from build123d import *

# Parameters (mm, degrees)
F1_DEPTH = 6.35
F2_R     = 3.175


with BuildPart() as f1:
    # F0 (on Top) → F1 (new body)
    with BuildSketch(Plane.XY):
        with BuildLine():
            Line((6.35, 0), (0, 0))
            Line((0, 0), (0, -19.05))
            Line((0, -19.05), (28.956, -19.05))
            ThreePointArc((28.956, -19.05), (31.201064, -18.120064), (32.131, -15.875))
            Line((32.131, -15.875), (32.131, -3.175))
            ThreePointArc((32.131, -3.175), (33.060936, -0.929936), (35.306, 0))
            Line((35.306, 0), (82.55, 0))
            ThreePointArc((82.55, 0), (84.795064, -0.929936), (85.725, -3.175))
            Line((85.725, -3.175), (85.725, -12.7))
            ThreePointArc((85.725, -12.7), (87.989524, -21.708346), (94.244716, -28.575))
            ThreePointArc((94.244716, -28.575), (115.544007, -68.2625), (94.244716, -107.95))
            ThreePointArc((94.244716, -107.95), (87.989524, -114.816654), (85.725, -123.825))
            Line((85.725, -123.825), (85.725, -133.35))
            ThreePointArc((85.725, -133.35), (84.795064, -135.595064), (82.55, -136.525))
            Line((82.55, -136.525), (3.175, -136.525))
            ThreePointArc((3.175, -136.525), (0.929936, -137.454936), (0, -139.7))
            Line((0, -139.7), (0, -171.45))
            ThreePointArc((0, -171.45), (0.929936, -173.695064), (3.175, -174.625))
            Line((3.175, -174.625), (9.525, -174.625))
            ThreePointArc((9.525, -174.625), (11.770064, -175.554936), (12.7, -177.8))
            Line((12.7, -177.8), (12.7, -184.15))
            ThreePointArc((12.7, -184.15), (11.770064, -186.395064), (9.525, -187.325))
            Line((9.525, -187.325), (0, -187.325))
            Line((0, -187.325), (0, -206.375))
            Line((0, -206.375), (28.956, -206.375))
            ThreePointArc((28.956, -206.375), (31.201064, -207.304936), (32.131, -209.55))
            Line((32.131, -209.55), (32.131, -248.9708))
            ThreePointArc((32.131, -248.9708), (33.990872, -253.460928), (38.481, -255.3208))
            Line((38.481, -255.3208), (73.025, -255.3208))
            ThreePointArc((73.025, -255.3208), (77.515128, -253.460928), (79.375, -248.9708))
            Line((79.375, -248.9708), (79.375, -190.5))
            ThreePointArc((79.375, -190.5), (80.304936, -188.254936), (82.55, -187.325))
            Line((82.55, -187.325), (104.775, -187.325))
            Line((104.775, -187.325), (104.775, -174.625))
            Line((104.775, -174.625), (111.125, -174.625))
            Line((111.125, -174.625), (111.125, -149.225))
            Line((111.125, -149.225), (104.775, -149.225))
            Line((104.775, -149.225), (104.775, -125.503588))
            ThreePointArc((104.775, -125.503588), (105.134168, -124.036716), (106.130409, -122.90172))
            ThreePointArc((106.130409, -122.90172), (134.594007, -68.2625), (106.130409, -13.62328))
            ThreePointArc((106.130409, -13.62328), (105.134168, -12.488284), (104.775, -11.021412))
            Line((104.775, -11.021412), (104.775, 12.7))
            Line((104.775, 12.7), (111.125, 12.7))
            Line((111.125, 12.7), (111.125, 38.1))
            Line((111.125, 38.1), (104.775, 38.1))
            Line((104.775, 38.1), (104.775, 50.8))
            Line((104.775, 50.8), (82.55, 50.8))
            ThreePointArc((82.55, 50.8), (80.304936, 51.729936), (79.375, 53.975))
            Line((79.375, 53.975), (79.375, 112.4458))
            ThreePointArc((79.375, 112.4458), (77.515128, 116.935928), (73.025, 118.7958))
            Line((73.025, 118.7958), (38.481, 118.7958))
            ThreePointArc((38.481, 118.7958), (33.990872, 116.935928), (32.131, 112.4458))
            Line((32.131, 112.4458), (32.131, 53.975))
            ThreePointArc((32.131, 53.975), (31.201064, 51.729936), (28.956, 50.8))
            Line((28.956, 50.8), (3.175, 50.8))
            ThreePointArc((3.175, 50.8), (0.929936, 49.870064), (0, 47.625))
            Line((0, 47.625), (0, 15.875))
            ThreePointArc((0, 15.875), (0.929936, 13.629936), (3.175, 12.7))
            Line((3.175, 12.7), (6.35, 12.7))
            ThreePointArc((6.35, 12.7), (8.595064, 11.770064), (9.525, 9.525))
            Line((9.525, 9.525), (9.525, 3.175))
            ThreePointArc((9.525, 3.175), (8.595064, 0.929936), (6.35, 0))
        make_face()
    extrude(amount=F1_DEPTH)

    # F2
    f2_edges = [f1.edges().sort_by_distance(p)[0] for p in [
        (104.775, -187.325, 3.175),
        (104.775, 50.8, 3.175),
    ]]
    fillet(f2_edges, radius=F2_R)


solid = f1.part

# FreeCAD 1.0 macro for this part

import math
import FreeCAD as App
import Part
import Sketcher
Q = App.Units.Quantity


def edges_at(feature, points):
    """Names of the edges that pass closest to the given points."""
    edges = feature.Shape.Edges
    near = lambda p: min(range(len(edges)), key=lambda i: edges[i].distToShape(Part.Vertex(*p))[0])
    return sorted({f"Edge{near(p) + 1}" for p in points})

doc = App.newDocument("Part")
body = doc.addObject("PartDesign::Body", "Body")

sketch1 = body.newObject("Sketcher::SketchObject", "Sketch")
sketch1.AttachmentSupport = (doc.getObject("XY_Plane"), [""])
sketch1.MapMode = "FlatFace"
sketch1.addGeometry(Part.LineSegment(App.Vector(6.3, 0, 0), App.Vector(0, 0, 0)), False)
sketch1.addGeometry(Part.LineSegment(App.Vector(0, 0, 0), App.Vector(0, -19.1, 0)), False)
sketch1.addGeometry(Part.LineSegment(App.Vector(0, -19.1, 0), App.Vector(29, -19.1, 0)), False)
sketch1.addGeometry(Part.ArcOfCircle(Part.Circle(App.Vector(29, -15.9, 0), App.Vector(0, 0, 1), 3.2), math.radians(-90), math.radians(0)), False)
sketch1.addGeometry(Part.LineSegment(App.Vector(32.1, -15.9, 0), App.Vector(32.1, -3.2, 0)), False)
sketch1.addGeometry(Part.ArcOfCircle(Part.Circle(App.Vector(35.3, -3.2, 0), App.Vector(0, 0, 1), 3.2), math.radians(90), math.radians(180)), False)
sketch1.addGeometry(Part.LineSegment(App.Vector(35.3, 0, 0), App.Vector(82.5, 0, 0)), False)
sketch1.addGeometry(Part.ArcOfCircle(Part.Circle(App.Vector(82.5, -3.2, 0), App.Vector(0, 0, 1), 3.2), math.radians(0), math.radians(90)), False)
sketch1.addGeometry(Part.LineSegment(App.Vector(85.7, -3.2, 0), App.Vector(85.7, -12.7, 0)), False)
sketch1.addGeometry(Part.ArcOfCircle(Part.Circle(App.Vector(104.8, -12.7, 0), App.Vector(0, 0, 1), 19.1), math.radians(180), math.radians(236)), False)
sketch1.addGeometry(Part.ArcOfCircle(Part.Circle(App.Vector(67.9, -68.3, 0), App.Vector(0, 0, 1), 47.6), math.radians(-56), math.radians(56)), False)
sketch1.addGeometry(Part.ArcOfCircle(Part.Circle(App.Vector(104.8, -123.8, 0), App.Vector(0, 0, 1), 19.1), math.radians(124), math.radians(180)), False)
sketch1.addGeometry(Part.LineSegment(App.Vector(85.7, -123.8, 0), App.Vector(85.7, -133.3, 0)), False)
sketch1.addGeometry(Part.ArcOfCircle(Part.Circle(App.Vector(82.5, -133.3, 0), App.Vector(0, 0, 1), 3.2), math.radians(-90), math.radians(0)), False)
sketch1.addGeometry(Part.LineSegment(App.Vector(82.5, -136.5, 0), App.Vector(3.2, -136.5, 0)), False)
sketch1.addGeometry(Part.ArcOfCircle(Part.Circle(App.Vector(3.2, -139.7, 0), App.Vector(0, 0, 1), 3.2), math.radians(90), math.radians(180)), False)
sketch1.addGeometry(Part.LineSegment(App.Vector(0, -139.7, 0), App.Vector(0, -171.4, 0)), False)
sketch1.addGeometry(Part.ArcOfCircle(Part.Circle(App.Vector(3.2, -171.4, 0), App.Vector(0, 0, 1), 3.2), math.radians(-180), math.radians(-90)), False)
sketch1.addGeometry(Part.LineSegment(App.Vector(3.2, -174.6, 0), App.Vector(9.5, -174.6, 0)), False)
sketch1.addGeometry(Part.ArcOfCircle(Part.Circle(App.Vector(9.5, -177.8, 0), App.Vector(0, 0, 1), 3.2), math.radians(0), math.radians(90)), False)
sketch1.addGeometry(Part.LineSegment(App.Vector(12.7, -177.8, 0), App.Vector(12.7, -184.2, 0)), False)
sketch1.addGeometry(Part.ArcOfCircle(Part.Circle(App.Vector(9.5, -184.1, 0), App.Vector(0, 0, 1), 3.2), math.radians(-90), math.radians(0)), False)
sketch1.addGeometry(Part.LineSegment(App.Vector(9.5, -187.3, 0), App.Vector(0, -187.3, 0)), False)
sketch1.addGeometry(Part.LineSegment(App.Vector(0, -187.3, 0), App.Vector(0, -206.4, 0)), False)
sketch1.addGeometry(Part.LineSegment(App.Vector(0, -206.4, 0), App.Vector(29, -206.4, 0)), False)
sketch1.addGeometry(Part.ArcOfCircle(Part.Circle(App.Vector(29, -209.6, 0), App.Vector(0, 0, 1), 3.2), math.radians(0), math.radians(90)), False)
sketch1.addGeometry(Part.LineSegment(App.Vector(32.1, -209.6, 0), App.Vector(32.1, -249, 0)), False)
sketch1.addGeometry(Part.ArcOfCircle(Part.Circle(App.Vector(38.5, -249, 0), App.Vector(0, 0, 1), 6.4), math.radians(-180), math.radians(-90)), False)
sketch1.addGeometry(Part.LineSegment(App.Vector(38.5, -255.3, 0), App.Vector(73, -255.3, 0)), False)
sketch1.addGeometry(Part.ArcOfCircle(Part.Circle(App.Vector(73, -249, 0), App.Vector(0, 0, 1), 6.4), math.radians(-90), math.radians(0)), False)
sketch1.addGeometry(Part.LineSegment(App.Vector(79.4, -249, 0), App.Vector(79.4, -190.5, 0)), False)
sketch1.addGeometry(Part.ArcOfCircle(Part.Circle(App.Vector(82.6, -190.5, 0), App.Vector(0, 0, 1), 3.2), math.radians(90), math.radians(180)), False)
sketch1.addGeometry(Part.LineSegment(App.Vector(82.5, -187.3, 0), App.Vector(104.8, -187.3, 0)), False)
sketch1.addGeometry(Part.LineSegment(App.Vector(104.8, -187.3, 0), App.Vector(104.8, -174.6, 0)), False)
sketch1.addGeometry(Part.LineSegment(App.Vector(104.8, -174.6, 0), App.Vector(111.1, -174.6, 0)), False)
sketch1.addGeometry(Part.LineSegment(App.Vector(111.1, -174.6, 0), App.Vector(111.1, -149.2, 0)), False)
sketch1.addGeometry(Part.LineSegment(App.Vector(111.1, -149.2, 0), App.Vector(104.8, -149.2, 0)), False)
sketch1.addGeometry(Part.LineSegment(App.Vector(104.8, -149.2, 0), App.Vector(104.8, -125.5, 0)), False)
sketch1.addGeometry(Part.ArcOfCircle(Part.Circle(App.Vector(108, -125.5, 0), App.Vector(0, 0, 1), 3.2), math.radians(125), math.radians(180)), False)
sketch1.addGeometry(Part.ArcOfCircle(Part.Circle(App.Vector(67.9, -68.3, 0), App.Vector(0, 0, 1), 66.7), math.radians(-55), math.radians(55)), False)
sketch1.addGeometry(Part.ArcOfCircle(Part.Circle(App.Vector(108, -11, 0), App.Vector(0, 0, 1), 3.2), math.radians(-180), math.radians(-125)), False)
sketch1.addGeometry(Part.LineSegment(App.Vector(104.8, -11, 0), App.Vector(104.8, 12.7, 0)), False)
sketch1.addGeometry(Part.LineSegment(App.Vector(104.8, 12.7, 0), App.Vector(111.1, 12.7, 0)), False)
sketch1.addGeometry(Part.LineSegment(App.Vector(111.1, 12.7, 0), App.Vector(111.1, 38.1, 0)), False)
sketch1.addGeometry(Part.LineSegment(App.Vector(111.1, 38.1, 0), App.Vector(104.8, 38.1, 0)), False)
sketch1.addGeometry(Part.LineSegment(App.Vector(104.8, 38.1, 0), App.Vector(104.8, 50.8, 0)), False)
sketch1.addGeometry(Part.LineSegment(App.Vector(104.8, 50.8, 0), App.Vector(82.5, 50.8, 0)), False)
sketch1.addGeometry(Part.ArcOfCircle(Part.Circle(App.Vector(82.6, 54, 0), App.Vector(0, 0, 1), 3.2), math.radians(-180), math.radians(-90)), False)
sketch1.addGeometry(Part.LineSegment(App.Vector(79.4, 54, 0), App.Vector(79.4, 112.4, 0)), False)
sketch1.addGeometry(Part.ArcOfCircle(Part.Circle(App.Vector(73, 112.4, 0), App.Vector(0, 0, 1), 6.4), math.radians(0), math.radians(90)), False)
sketch1.addGeometry(Part.LineSegment(App.Vector(73, 118.8, 0), App.Vector(38.5, 118.8, 0)), False)
sketch1.addGeometry(Part.ArcOfCircle(Part.Circle(App.Vector(38.5, 112.4, 0), App.Vector(0, 0, 1), 6.4), math.radians(90), math.radians(180)), False)
sketch1.addGeometry(Part.LineSegment(App.Vector(32.1, 112.4, 0), App.Vector(32.1, 54, 0)), False)
sketch1.addGeometry(Part.ArcOfCircle(Part.Circle(App.Vector(29, 54, 0), App.Vector(0, 0, 1), 3.2), math.radians(-90), math.radians(0)), False)
sketch1.addGeometry(Part.LineSegment(App.Vector(29, 50.8, 0), App.Vector(3.2, 50.8, 0)), False)
sketch1.addGeometry(Part.ArcOfCircle(Part.Circle(App.Vector(3.2, 47.6, 0), App.Vector(0, 0, 1), 3.2), math.radians(90), math.radians(180)), False)
sketch1.addGeometry(Part.LineSegment(App.Vector(0, 47.6, 0), App.Vector(0, 15.9, 0)), False)
sketch1.addGeometry(Part.ArcOfCircle(Part.Circle(App.Vector(3.2, 15.9, 0), App.Vector(0, 0, 1), 3.2), math.radians(-180), math.radians(-90)), False)
sketch1.addGeometry(Part.LineSegment(App.Vector(3.2, 12.7, 0), App.Vector(6.3, 12.7, 0)), False)
sketch1.addGeometry(Part.ArcOfCircle(Part.Circle(App.Vector(6.3, 9.5, 0), App.Vector(0, 0, 1), 3.2), math.radians(0), math.radians(90)), False)
sketch1.addGeometry(Part.LineSegment(App.Vector(9.5, 9.5, 0), App.Vector(9.5, 3.2, 0)), False)
sketch1.addGeometry(Part.ArcOfCircle(Part.Circle(App.Vector(6.3, 3.2, 0), App.Vector(0, 0, 1), 3.2), math.radians(-90), math.radians(0)), False)
sketch1.addConstraint(Sketcher.Constraint("Coincident", 0, 2, 1, 1))
sketch1.addConstraint(Sketcher.Constraint("Coincident", 1, 2, 2, 1))
sketch1.addConstraint(Sketcher.Constraint("Tangent", 2, 2, 3, 1))
sketch1.addConstraint(Sketcher.Constraint("Tangent", 3, 2, 4, 1))
sketch1.addConstraint(Sketcher.Constraint("Tangent", 4, 2, 5, 2))
sketch1.addConstraint(Sketcher.Constraint("Tangent", 5, 1, 6, 1))
sketch1.addConstraint(Sketcher.Constraint("Tangent", 6, 2, 7, 2))
sketch1.addConstraint(Sketcher.Constraint("Tangent", 7, 1, 8, 1))
sketch1.addConstraint(Sketcher.Constraint("Tangent", 8, 2, 9, 1))
sketch1.addConstraint(Sketcher.Constraint("Tangent", 9, 2, 10, 2))
sketch1.addConstraint(Sketcher.Constraint("Tangent", 10, 1, 11, 1))
sketch1.addConstraint(Sketcher.Constraint("Tangent", 11, 2, 12, 1))
sketch1.addConstraint(Sketcher.Constraint("Tangent", 12, 2, 13, 2))
sketch1.addConstraint(Sketcher.Constraint("Tangent", 13, 1, 14, 1))
sketch1.addConstraint(Sketcher.Constraint("Tangent", 14, 2, 15, 1))
sketch1.addConstraint(Sketcher.Constraint("Tangent", 15, 2, 16, 1))
sketch1.addConstraint(Sketcher.Constraint("Tangent", 16, 2, 17, 1))
sketch1.addConstraint(Sketcher.Constraint("Tangent", 17, 2, 18, 1))
sketch1.addConstraint(Sketcher.Constraint("Tangent", 18, 2, 19, 2))
sketch1.addConstraint(Sketcher.Constraint("Tangent", 19, 1, 20, 1))
sketch1.addConstraint(Sketcher.Constraint("Tangent", 20, 2, 21, 2))
sketch1.addConstraint(Sketcher.Constraint("Tangent", 21, 1, 22, 1))
sketch1.addConstraint(Sketcher.Constraint("Coincident", 22, 2, 23, 1))
sketch1.addConstraint(Sketcher.Constraint("Coincident", 23, 2, 24, 1))
sketch1.addConstraint(Sketcher.Constraint("Tangent", 24, 2, 25, 2))
sketch1.addConstraint(Sketcher.Constraint("Tangent", 25, 1, 26, 1))
sketch1.addConstraint(Sketcher.Constraint("Tangent", 26, 2, 27, 1))
sketch1.addConstraint(Sketcher.Constraint("Tangent", 27, 2, 28, 1))
sketch1.addConstraint(Sketcher.Constraint("Tangent", 28, 2, 29, 1))
sketch1.addConstraint(Sketcher.Constraint("Tangent", 29, 2, 30, 1))
sketch1.addConstraint(Sketcher.Constraint("Tangent", 30, 2, 31, 2))
sketch1.addConstraint(Sketcher.Constraint("Tangent", 31, 1, 32, 1))
sketch1.addConstraint(Sketcher.Constraint("Coincident", 32, 2, 33, 1))
sketch1.addConstraint(Sketcher.Constraint("Coincident", 33, 2, 34, 1))
sketch1.addConstraint(Sketcher.Constraint("Coincident", 34, 2, 35, 1))
sketch1.addConstraint(Sketcher.Constraint("Coincident", 35, 2, 36, 1))
sketch1.addConstraint(Sketcher.Constraint("Coincident", 36, 2, 37, 1))
sketch1.addConstraint(Sketcher.Constraint("Tangent", 37, 2, 38, 2))
sketch1.addConstraint(Sketcher.Constraint("Tangent", 38, 1, 39, 1))
sketch1.addConstraint(Sketcher.Constraint("Tangent", 39, 2, 40, 2))
sketch1.addConstraint(Sketcher.Constraint("Tangent", 40, 1, 41, 1))
sketch1.addConstraint(Sketcher.Constraint("Coincident", 41, 2, 42, 1))
sketch1.addConstraint(Sketcher.Constraint("Coincident", 42, 2, 43, 1))
sketch1.addConstraint(Sketcher.Constraint("Coincident", 43, 2, 44, 1))
sketch1.addConstraint(Sketcher.Constraint("Coincident", 44, 2, 45, 1))
sketch1.addConstraint(Sketcher.Constraint("Coincident", 45, 2, 46, 1))
sketch1.addConstraint(Sketcher.Constraint("Tangent", 46, 2, 47, 2))
sketch1.addConstraint(Sketcher.Constraint("Tangent", 47, 1, 48, 1))
sketch1.addConstraint(Sketcher.Constraint("Tangent", 48, 2, 49, 1))
sketch1.addConstraint(Sketcher.Constraint("Tangent", 49, 2, 50, 1))
sketch1.addConstraint(Sketcher.Constraint("Tangent", 50, 2, 51, 1))
sketch1.addConstraint(Sketcher.Constraint("Tangent", 51, 2, 52, 1))
sketch1.addConstraint(Sketcher.Constraint("Tangent", 52, 2, 53, 2))
sketch1.addConstraint(Sketcher.Constraint("Tangent", 53, 1, 54, 1))
sketch1.addConstraint(Sketcher.Constraint("Tangent", 54, 2, 55, 1))
sketch1.addConstraint(Sketcher.Constraint("Tangent", 55, 2, 56, 1))
sketch1.addConstraint(Sketcher.Constraint("Tangent", 56, 2, 57, 1))
sketch1.addConstraint(Sketcher.Constraint("Tangent", 57, 2, 58, 1))
sketch1.addConstraint(Sketcher.Constraint("Tangent", 58, 2, 59, 2))
sketch1.addConstraint(Sketcher.Constraint("Tangent", 59, 1, 60, 1))
sketch1.addConstraint(Sketcher.Constraint("Tangent", 60, 2, 61, 2))
sketch1.addConstraint(Sketcher.Constraint("Tangent", 61, 1, 0, 1))
sketch1.addConstraint(Sketcher.Constraint("Horizontal", 0))
sketch1.addConstraint(Sketcher.Constraint("Vertical", 1))
sketch1.addConstraint(Sketcher.Constraint("Horizontal", 2))
sketch1.addConstraint(Sketcher.Constraint("Vertical", 4))
sketch1.addConstraint(Sketcher.Constraint("Horizontal", 6))
sketch1.addConstraint(Sketcher.Constraint("Vertical", 8))
sketch1.addConstraint(Sketcher.Constraint("Vertical", 12))
sketch1.addConstraint(Sketcher.Constraint("Horizontal", 14))
sketch1.addConstraint(Sketcher.Constraint("Vertical", 16))
sketch1.addConstraint(Sketcher.Constraint("Horizontal", 18))
sketch1.addConstraint(Sketcher.Constraint("Vertical", 20))
sketch1.addConstraint(Sketcher.Constraint("Horizontal", 22))
sketch1.addConstraint(Sketcher.Constraint("Vertical", 23))
sketch1.addConstraint(Sketcher.Constraint("Horizontal", 24))
sketch1.addConstraint(Sketcher.Constraint("Vertical", 26))
sketch1.addConstraint(Sketcher.Constraint("Horizontal", 28))
sketch1.addConstraint(Sketcher.Constraint("Vertical", 30))
sketch1.addConstraint(Sketcher.Constraint("Horizontal", 32))
sketch1.addConstraint(Sketcher.Constraint("Vertical", 33))
sketch1.addConstraint(Sketcher.Constraint("Horizontal", 34))
sketch1.addConstraint(Sketcher.Constraint("Vertical", 35))
sketch1.addConstraint(Sketcher.Constraint("Horizontal", 36))
sketch1.addConstraint(Sketcher.Constraint("Vertical", 37))
sketch1.addConstraint(Sketcher.Constraint("Vertical", 41))
sketch1.addConstraint(Sketcher.Constraint("Horizontal", 42))
sketch1.addConstraint(Sketcher.Constraint("Vertical", 43))
sketch1.addConstraint(Sketcher.Constraint("Horizontal", 44))
sketch1.addConstraint(Sketcher.Constraint("Vertical", 45))
sketch1.addConstraint(Sketcher.Constraint("Horizontal", 46))
sketch1.addConstraint(Sketcher.Constraint("Vertical", 48))
sketch1.addConstraint(Sketcher.Constraint("Horizontal", 50))
sketch1.addConstraint(Sketcher.Constraint("Vertical", 52))
sketch1.addConstraint(Sketcher.Constraint("Horizontal", 54))
sketch1.addConstraint(Sketcher.Constraint("Vertical", 56))
sketch1.addConstraint(Sketcher.Constraint("Horizontal", 58))
sketch1.addConstraint(Sketcher.Constraint("Vertical", 60))
sketch1.addConstraint(Sketcher.Constraint("Coincident", 0, 2, -1, 1))
sketch1.addConstraint(Sketcher.Constraint("Coincident", 39, 3, 10, 3))
sketch1.addConstraint(Sketcher.Constraint("Equal", 3, 5))
sketch1.addConstraint(Sketcher.Constraint("Equal", 5, 7))
sketch1.addConstraint(Sketcher.Constraint("Equal", 9, 11))
sketch1.addConstraint(Sketcher.Constraint("Equal", 7, 13))
sketch1.addConstraint(Sketcher.Constraint("Equal", 13, 15))
sketch1.addConstraint(Sketcher.Constraint("Equal", 15, 17))
sketch1.addConstraint(Sketcher.Constraint("Equal", 17, 19))
sketch1.addConstraint(Sketcher.Constraint("Equal", 19, 21))
sketch1.addConstraint(Sketcher.Constraint("Equal", 21, 25))
sketch1.addConstraint(Sketcher.Constraint("Equal", 27, 29))
sketch1.addConstraint(Sketcher.Constraint("Equal", 25, 31))
sketch1.addConstraint(Sketcher.Constraint("Equal", 38, 40))
sketch1.addConstraint(Sketcher.Constraint("Equal", 31, 47))
sketch1.addConstraint(Sketcher.Constraint("Equal", 29, 49))
sketch1.addConstraint(Sketcher.Constraint("Equal", 49, 51))
sketch1.addConstraint(Sketcher.Constraint("Equal", 47, 53))
sketch1.addConstraint(Sketcher.Constraint("Equal", 53, 55))
sketch1.addConstraint(Sketcher.Constraint("Equal", 55, 57))
sketch1.addConstraint(Sketcher.Constraint("Equal", 57, 59))
sketch1.addConstraint(Sketcher.Constraint("Equal", 59, 61))
sketch1.addConstraint(Sketcher.Constraint("PointOnObject", 5, 1, -1))
sketch1.addConstraint(Sketcher.Constraint("PointOnObject", 15, 2, -2))
sketch1.addConstraint(Sketcher.Constraint("PointOnObject", 22, 2, -2))
sketch1.addConstraint(Sketcher.Constraint("PointOnObject", 55, 2, -2))
sketch1.addConstraint(Sketcher.Constraint("Horizontal", 47, 3, 53, 3))
sketch1.addConstraint(Sketcher.Constraint("Horizontal", 22, 2, 31, 1))
sketch1.addConstraint(Sketcher.Constraint("Horizontal", 18, 2, 33, 2))
sketch1.addConstraint(Sketcher.Constraint("Horizontal", 42, 2, 57, 2))
sketch1.addConstraint(Sketcher.Constraint("Vertical", 9, 3, 11, 3))
sketch1.addConstraint(Sketcher.Constraint("Vertical", 3, 3, 25, 3))
sketch1.addConstraint(Sketcher.Constraint("Vertical", 13, 3, 31, 3))
sketch1.addConstraint(Sketcher.Constraint("Vertical", 38, 3, 40, 3))
sketch1.addConstraint(Sketcher.Constraint("Vertical", 31, 3, 47, 3))
sketch1.addConstraint(Sketcher.Constraint("Vertical", 27, 3, 51, 3))
sketch1.addConstraint(Sketcher.Constraint("Vertical", 11, 3, 32, 2))
sketch1.addConstraint(Sketcher.Constraint("Vertical", 33, 2, 36, 2))
sketch1.addConstraint(Sketcher.Constraint("Vertical", 35, 2, 42, 2))
sketch1.addConstraint(Sketcher.Constraint("Vertical", 41, 2, 44, 2))
sketch1.addConstraint(Sketcher.Constraint("Vertical", 21, 1, 59, 1))
sketch1.addConstraint(Sketcher.Constraint("Equal", 18, 34))
sketch1.addConstraint(Sketcher.Constraint("Equal", 22, 8))
sketch1.addConstraint(Sketcher.Constraint("Equal", 8, 12))
sketch1.addConstraint(Sketcher.Constraint("Equal", 44, 20))
sketch1.addConstraint(Sketcher.Constraint("Equal", 1, 23))
sketch1.addConstraint(Sketcher.Constraint("Equal", 4, 33))
sketch1.addConstraint(Sketcher.Constraint("Equal", 37, 41))
sketch1.addConstraint(Sketcher.Constraint("Equal", 35, 43))
sketch1.addConstraint(Sketcher.Constraint("Equal", 33, 45))
sketch1.addConstraint(Sketcher.Constraint("Equal", 30, 48))
sketch1.addConstraint(Sketcher.Constraint("Equal", 16, 56))
sketch1.addConstraint(Sketcher.Constraint("DistanceY", 35, 1, 35, 2, Q("1 in")))
sketch1.addConstraint(Sketcher.Constraint("Radius", 9, Q("0.75 in")))
sketch1.addConstraint(Sketcher.Constraint("Radius", 27, Q("0.25 in")))
sketch1.addConstraint(Sketcher.Constraint("DistanceY", 4, 1, 4, 2, Q("0.5 in")))
sketch1.addConstraint(Sketcher.Constraint("DistanceY", 19, 3, -1, 1, Q("7 in")))
sketch1.addConstraint(Sketcher.Constraint("Radius", 3, Q("0.125 in")))
sketch1.addConstraint(Sketcher.Constraint("Radius", 10, Q("1.875 in")))
sketch1.addConstraint(Sketcher.Constraint("Radius", 38, Q("0.1250002 in")))
sketch1.addConstraint(Sketcher.Constraint("Radius", 39, Q("2.625 in")))
sketch1.addConstraint(Sketcher.Constraint("DistanceX", 2, 1, 2, 2, Q("1.14 in")))
sketch1.addConstraint(Sketcher.Constraint("DistanceX", 6, 1, 6, 2, Q("1.86 in")))
sketch1.addConstraint(Sketcher.Constraint("DistanceY", 26, 2, 26, 1, Q("1.552 in")))
pad1 = body.newObject("PartDesign::Pad", "Pad")
pad1.Profile = sketch1
pad1.Length = Q("0.25 in")
doc.recompute()

fillet = body.newObject("PartDesign::Fillet", "Fillet")
fillet.Base = (pad1, edges_at(pad1, [(104.775, -187.325, 3.175), (104.775, 50.8, 3.175)]))
fillet.Radius = Q("0.125 in")

doc.recompute()
